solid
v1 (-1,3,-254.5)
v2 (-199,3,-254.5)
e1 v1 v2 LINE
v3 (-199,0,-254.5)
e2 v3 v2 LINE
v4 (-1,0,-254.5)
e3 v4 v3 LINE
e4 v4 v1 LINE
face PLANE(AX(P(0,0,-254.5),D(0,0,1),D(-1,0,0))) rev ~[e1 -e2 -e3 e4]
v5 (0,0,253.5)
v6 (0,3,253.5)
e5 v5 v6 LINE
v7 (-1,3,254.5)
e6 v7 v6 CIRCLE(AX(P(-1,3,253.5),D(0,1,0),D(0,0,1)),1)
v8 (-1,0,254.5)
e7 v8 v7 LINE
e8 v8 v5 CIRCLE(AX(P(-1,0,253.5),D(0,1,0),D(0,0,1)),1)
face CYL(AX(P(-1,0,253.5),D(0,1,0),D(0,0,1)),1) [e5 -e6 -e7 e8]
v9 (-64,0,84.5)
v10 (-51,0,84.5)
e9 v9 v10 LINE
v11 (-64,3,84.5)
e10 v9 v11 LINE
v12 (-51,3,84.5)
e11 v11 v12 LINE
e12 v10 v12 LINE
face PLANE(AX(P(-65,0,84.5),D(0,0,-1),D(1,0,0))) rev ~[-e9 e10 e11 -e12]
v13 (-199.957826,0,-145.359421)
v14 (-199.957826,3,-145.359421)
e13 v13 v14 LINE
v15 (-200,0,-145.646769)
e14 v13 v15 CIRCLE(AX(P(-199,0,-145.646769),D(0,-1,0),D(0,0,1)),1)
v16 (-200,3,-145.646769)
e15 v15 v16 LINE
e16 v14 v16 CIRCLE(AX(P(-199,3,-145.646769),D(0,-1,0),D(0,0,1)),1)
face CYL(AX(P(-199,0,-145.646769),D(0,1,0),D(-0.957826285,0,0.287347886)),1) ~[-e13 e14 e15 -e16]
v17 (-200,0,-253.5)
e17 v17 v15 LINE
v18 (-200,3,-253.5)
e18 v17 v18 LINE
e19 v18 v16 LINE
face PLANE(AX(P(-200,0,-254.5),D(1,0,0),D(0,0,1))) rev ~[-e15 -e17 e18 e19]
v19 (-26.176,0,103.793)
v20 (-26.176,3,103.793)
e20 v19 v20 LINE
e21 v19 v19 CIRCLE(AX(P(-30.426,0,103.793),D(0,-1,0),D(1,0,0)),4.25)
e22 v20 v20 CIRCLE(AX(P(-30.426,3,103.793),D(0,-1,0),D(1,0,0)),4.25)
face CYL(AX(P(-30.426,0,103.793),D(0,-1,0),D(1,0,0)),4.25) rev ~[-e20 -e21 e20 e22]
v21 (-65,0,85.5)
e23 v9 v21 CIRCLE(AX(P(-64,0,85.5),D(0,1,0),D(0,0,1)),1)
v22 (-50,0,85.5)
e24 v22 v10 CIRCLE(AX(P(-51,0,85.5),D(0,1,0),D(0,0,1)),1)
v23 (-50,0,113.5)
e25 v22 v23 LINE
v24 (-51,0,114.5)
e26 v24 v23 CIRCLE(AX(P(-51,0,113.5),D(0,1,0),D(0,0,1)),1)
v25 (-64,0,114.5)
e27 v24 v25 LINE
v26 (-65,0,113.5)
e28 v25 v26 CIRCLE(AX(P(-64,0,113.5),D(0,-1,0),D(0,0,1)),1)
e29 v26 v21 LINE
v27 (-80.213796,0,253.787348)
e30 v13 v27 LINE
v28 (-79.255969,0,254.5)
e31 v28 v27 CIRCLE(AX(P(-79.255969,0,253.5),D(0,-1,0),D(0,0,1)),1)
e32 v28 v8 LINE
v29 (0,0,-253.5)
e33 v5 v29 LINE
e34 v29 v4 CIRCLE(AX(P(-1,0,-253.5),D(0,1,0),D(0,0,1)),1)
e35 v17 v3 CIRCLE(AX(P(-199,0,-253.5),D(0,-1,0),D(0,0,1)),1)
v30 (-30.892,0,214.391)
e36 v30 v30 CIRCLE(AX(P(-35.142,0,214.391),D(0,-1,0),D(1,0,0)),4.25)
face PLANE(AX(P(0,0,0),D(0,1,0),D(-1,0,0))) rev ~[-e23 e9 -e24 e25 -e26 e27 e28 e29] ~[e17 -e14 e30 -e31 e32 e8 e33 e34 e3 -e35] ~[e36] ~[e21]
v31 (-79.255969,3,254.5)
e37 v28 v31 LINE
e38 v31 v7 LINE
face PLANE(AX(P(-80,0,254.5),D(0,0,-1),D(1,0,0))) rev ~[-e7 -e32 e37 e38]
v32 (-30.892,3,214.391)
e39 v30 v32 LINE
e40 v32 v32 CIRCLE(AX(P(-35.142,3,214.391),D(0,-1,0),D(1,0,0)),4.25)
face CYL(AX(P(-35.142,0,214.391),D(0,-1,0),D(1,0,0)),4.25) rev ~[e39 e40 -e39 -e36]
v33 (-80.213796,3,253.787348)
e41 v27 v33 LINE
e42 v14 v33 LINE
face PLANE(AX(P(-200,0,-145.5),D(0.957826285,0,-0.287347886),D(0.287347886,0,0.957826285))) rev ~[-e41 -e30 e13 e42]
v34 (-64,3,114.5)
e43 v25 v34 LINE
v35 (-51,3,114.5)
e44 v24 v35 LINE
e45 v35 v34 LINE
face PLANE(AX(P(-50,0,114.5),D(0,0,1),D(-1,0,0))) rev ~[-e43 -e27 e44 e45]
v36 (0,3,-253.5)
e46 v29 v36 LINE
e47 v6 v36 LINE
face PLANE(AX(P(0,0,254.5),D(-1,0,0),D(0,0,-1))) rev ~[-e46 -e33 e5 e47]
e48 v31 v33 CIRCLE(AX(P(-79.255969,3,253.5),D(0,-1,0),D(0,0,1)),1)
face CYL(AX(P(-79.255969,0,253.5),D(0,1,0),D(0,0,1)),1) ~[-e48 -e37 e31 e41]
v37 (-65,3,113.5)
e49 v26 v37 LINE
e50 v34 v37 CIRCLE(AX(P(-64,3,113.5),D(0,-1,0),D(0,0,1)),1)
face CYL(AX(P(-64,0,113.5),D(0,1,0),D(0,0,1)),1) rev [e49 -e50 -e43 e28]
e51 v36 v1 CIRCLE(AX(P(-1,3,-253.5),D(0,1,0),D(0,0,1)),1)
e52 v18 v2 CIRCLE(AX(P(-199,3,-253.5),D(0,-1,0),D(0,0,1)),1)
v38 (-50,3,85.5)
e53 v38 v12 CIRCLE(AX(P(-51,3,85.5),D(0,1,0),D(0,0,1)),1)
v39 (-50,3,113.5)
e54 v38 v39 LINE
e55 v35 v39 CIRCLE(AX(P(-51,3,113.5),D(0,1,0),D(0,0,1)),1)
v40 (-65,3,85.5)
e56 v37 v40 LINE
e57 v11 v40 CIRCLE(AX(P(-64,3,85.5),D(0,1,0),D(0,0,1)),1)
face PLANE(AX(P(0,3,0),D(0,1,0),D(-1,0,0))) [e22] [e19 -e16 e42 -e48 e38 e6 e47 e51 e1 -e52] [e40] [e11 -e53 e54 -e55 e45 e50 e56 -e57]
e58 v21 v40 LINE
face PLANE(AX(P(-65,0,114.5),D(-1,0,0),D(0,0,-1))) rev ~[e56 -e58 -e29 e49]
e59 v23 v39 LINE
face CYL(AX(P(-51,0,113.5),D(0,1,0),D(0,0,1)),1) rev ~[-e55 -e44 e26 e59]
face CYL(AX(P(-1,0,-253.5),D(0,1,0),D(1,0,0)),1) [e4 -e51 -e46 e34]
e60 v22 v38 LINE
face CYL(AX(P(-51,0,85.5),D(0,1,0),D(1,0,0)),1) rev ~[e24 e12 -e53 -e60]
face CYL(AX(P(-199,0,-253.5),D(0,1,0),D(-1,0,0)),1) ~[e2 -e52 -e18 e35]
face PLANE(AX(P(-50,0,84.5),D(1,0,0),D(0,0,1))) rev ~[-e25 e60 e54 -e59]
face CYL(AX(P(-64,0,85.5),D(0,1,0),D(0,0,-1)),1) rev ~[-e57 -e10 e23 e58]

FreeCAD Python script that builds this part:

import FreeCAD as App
import Part
import Sketcher

V = App.Vector
Q = App.Units.Quantity


def edges_at(feature, points):
    """Names of the edges that pass closest to the given points."""
    edges = feature.Shape.Edges
    near = lambda p: min(range(len(edges)), key=lambda i: edges[i].distToShape(Part.Vertex(*p))[0])
    return sorted({f"Edge{near(p) + 1}" for p in points})


def add_polygon(sketch, points):
    """Adds a closed chain of lines whose ends are joined by coincident constraints."""
    first, n = sketch.GeometryCount, len(points)
    for a, b in zip(points, points[1:] + points[:1]):
        sketch.addGeometry(Part.LineSegment(App.Vector(*a, 0), App.Vector(*b, 0)), False)
    for i in range(n):
        sketch.addConstraint(Sketcher.Constraint("Coincident", first + i, 2, first + (i + 1) % n, 1))

doc = App.newDocument("Part")
body = doc.addObject("PartDesign::Body", "Body")

# Sketch on XZ plane
sketch1 = body.newObject("Sketcher::SketchObject", "Sketch")
sketch1.AttachmentSupport = (doc.getObject("XZ_Plane"), [""])
sketch1.MapMode = "FlatFace"
add_polygon(sketch1, [(-80, 254), (0, 254), (0, -254), (-200, -254), (-200, -146)])  # lines 0-4
sketch1.addConstraint([
    Sketcher.Constraint("Horizontal", 0),
    Sketcher.Constraint("Vertical", 1),
    Sketcher.Constraint("Horizontal", 2),
    Sketcher.Constraint("Vertical", 3),
    Sketcher.Constraint("Symmetric", 0, 2, 1, 2, -1, 1),
    Sketcher.Constraint("DistanceX", 0, 1, 0, 2, Q("80 mm")),
    Sketcher.Constraint("DistanceX", 2, 2, 2, 1, Q("200 mm")),
    Sketcher.Constraint("DistanceY", 1, 2, 1, 1, Q("509 mm")),
    Sketcher.Constraint("DistanceY", 3, 1, 3, 2, Q("109 mm")),
])
pad1 = body.newObject("PartDesign::Pad", "Pad")
pad1.Profile = sketch1
pad1.Length = 3
pad1.Reversed = True

# Sketch on XZ plane
sketch2 = body.newObject("Sketcher::SketchObject", "Sketch001")
sketch2.AttachmentSupport = (doc.getObject("XZ_Plane"), [""])
sketch2.MapMode = "FlatFace"
sketch2.addGeometry(Part.Circle(V(-35.1, 214.4, 0), V(0, 0, 1), 4.2), False)  # 0
sketch2.addGeometry(Part.Circle(V(-30.4, 103.8, 0), V(0, 0, 1), 4.2), False)  # 1
add_polygon(sketch2, [(-65, 114.5), (-65, 84.5), (-50, 84.5), (-50, 114.5)])  # lines 2-5
sketch2.addConstraint([
    Sketcher.Constraint("Vertical", 2),
    Sketcher.Constraint("Horizontal", 3),
    Sketcher.Constraint("Vertical", 4),
    Sketcher.Constraint("Horizontal", 5),
    Sketcher.Constraint("Equal", 0, 1),
    Sketcher.Constraint("Diameter", 0, Q("8.5 mm")),
    Sketcher.Constraint("DistanceX", 3, 1, 3, 2, Q("15 mm")),
    Sketcher.Constraint("DistanceY", 2, 2, 2, 1, Q("30 mm")),
    Sketcher.Constraint("DistanceX", 3, 2, -1, 1, Q("50 mm")),
    Sketcher.Constraint("DistanceX", 0, 3, -1, 1, Q("35.142 mm")),
    Sketcher.Constraint("DistanceX", 1, 3, -1, 1, Q("30.426 mm")),
    Sketcher.Constraint("DistanceY", -1, 1, 2, 2, Q("84.5 mm")),
    Sketcher.Constraint("DistanceY", -1, 1, 0, 3, Q("214.391 mm")),
    Sketcher.Constraint("DistanceY", -1, 1, 1, 3, Q("103.793 mm")),
])
pocket1 = body.newObject("PartDesign::Pocket", "Pocket")
pocket1.Profile = sketch2
pocket1.Length = 3
doc.recompute()

fillet = body.newObject("PartDesign::Fillet", "Fillet")
fillet.Base = (pocket1, edges_at(pocket1, [
    (-80, 1.5, 254.5),
    (0, 1.5, 254.5),
    (-200, 1.5, -145.5),
    (-200, 1.5, -254.5),
    (0, 1.5, -254.5),
    (-50, 1.5, 84.5),
    (-50, 1.5, 114.5),
    (-65, 1.5, 114.5),
    (-65, 1.5, 84.5),
]))
fillet.Radius = 1

doc.recompute()
